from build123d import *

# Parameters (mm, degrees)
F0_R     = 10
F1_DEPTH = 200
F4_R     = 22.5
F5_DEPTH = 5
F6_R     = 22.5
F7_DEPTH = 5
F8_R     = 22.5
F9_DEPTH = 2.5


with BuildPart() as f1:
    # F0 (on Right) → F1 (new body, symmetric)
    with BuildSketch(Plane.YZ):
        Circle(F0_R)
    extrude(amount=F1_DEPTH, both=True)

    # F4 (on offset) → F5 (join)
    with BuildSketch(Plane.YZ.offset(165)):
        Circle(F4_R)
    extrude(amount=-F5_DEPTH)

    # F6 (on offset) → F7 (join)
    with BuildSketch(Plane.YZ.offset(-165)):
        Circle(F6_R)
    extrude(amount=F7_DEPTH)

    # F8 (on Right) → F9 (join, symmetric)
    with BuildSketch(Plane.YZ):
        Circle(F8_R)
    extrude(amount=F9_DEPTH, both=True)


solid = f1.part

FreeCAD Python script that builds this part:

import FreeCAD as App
import Part
import Sketcher
from FreeCAD import Vector
Q = App.Units.Quantity

doc = App.newDocument("Part")
body = doc.addObject("PartDesign::Body", "Body")

# Sketch on YZ plane
sketch1 = doc.addObject("Sketcher::SketchObject", "Sketch")
body.addObject(sketch1)
sketch1.AttachmentSupport = (doc.YZ_Plane, [""])
sketch1.MapMode = "FlatFace"
sketch1.addGeometry(Part.Circle(Vector(0, 0, 0), Vector(0, 0, 1), 10), False)
sketch1.addConstraint([
    Sketcher.Constraint("Coincident", 0, 3, -1, 1),
    Sketcher.Constraint("Diameter", 0, Q("20 mm")),
])
pad1 = doc.addObject("PartDesign::Pad", "Pad")
body.addObject(pad1)
pad1.Profile = sketch1
pad1.Length = 400
pad1.Midplane = True

# Sketch on YZ plane
sketch2 = doc.addObject("Sketcher::SketchObject", "Sketch001")
body.addObject(sketch2)
sketch2.AttachmentSupport = (doc.YZ_Plane, [""])
sketch2.MapMode = "FlatFace"
sketch2.AttachmentOffset = App.Placement(Vector(0, 0, 165), App.Rotation())
sketch2.addGeometry(Part.Circle(Vector(0, 0, 0), Vector(0, 0, 1), 22.5), False)
sketch2.addConstraint([
    Sketcher.Constraint("Coincident", 0, 3, -1, 1),
    Sketcher.Constraint("Diameter", 0, Q("45 mm")),
])
pad2 = doc.addObject("PartDesign::Pad", "Pad001")
body.addObject(pad2)
pad2.Profile = sketch2
pad2.Length = 5
pad2.Reversed = True

# Sketch on YZ plane
sketch3 = doc.addObject("Sketcher::SketchObject", "Sketch002")
body.addObject(sketch3)
sketch3.AttachmentSupport = (doc.YZ_Plane, [""])
sketch3.MapMode = "FlatFace"
sketch3.AttachmentOffset = App.Placement(Vector(0, 0, -165), App.Rotation())
sketch3.addGeometry(Part.Circle(Vector(0, 0, 0), Vector(0, 0, 1), 22.5), False)
sketch3.addConstraint([
    Sketcher.Constraint("Coincident", 0, 3, -1, 1),
    Sketcher.Constraint("Diameter", 0, Q("45 mm")),
])
pad3 = doc.addObject("PartDesign::Pad", "Pad002")
body.addObject(pad3)
pad3.Profile = sketch3
pad3.Length = 5

# Sketch on YZ plane
sketch4 = doc.addObject("Sketcher::SketchObject", "Sketch003")
body.addObject(sketch4)
sketch4.AttachmentSupport = (doc.YZ_Plane, [""])
sketch4.MapMode = "FlatFace"
sketch4.addGeometry(Part.Circle(Vector(0, 0, 0), Vector(0, 0, 1), 22.5), False)
sketch4.addConstraint([
    Sketcher.Constraint("Coincident", 0, 3, -1, 1),
    Sketcher.Constraint("Diameter", 0, Q("45 mm")),
])
pad4 = doc.addObject("PartDesign::Pad", "Pad003")
body.addObject(pad4)
pad4.Profile = sketch4
pad4.Length = 5
pad4.Midplane = True

doc.recompute()
